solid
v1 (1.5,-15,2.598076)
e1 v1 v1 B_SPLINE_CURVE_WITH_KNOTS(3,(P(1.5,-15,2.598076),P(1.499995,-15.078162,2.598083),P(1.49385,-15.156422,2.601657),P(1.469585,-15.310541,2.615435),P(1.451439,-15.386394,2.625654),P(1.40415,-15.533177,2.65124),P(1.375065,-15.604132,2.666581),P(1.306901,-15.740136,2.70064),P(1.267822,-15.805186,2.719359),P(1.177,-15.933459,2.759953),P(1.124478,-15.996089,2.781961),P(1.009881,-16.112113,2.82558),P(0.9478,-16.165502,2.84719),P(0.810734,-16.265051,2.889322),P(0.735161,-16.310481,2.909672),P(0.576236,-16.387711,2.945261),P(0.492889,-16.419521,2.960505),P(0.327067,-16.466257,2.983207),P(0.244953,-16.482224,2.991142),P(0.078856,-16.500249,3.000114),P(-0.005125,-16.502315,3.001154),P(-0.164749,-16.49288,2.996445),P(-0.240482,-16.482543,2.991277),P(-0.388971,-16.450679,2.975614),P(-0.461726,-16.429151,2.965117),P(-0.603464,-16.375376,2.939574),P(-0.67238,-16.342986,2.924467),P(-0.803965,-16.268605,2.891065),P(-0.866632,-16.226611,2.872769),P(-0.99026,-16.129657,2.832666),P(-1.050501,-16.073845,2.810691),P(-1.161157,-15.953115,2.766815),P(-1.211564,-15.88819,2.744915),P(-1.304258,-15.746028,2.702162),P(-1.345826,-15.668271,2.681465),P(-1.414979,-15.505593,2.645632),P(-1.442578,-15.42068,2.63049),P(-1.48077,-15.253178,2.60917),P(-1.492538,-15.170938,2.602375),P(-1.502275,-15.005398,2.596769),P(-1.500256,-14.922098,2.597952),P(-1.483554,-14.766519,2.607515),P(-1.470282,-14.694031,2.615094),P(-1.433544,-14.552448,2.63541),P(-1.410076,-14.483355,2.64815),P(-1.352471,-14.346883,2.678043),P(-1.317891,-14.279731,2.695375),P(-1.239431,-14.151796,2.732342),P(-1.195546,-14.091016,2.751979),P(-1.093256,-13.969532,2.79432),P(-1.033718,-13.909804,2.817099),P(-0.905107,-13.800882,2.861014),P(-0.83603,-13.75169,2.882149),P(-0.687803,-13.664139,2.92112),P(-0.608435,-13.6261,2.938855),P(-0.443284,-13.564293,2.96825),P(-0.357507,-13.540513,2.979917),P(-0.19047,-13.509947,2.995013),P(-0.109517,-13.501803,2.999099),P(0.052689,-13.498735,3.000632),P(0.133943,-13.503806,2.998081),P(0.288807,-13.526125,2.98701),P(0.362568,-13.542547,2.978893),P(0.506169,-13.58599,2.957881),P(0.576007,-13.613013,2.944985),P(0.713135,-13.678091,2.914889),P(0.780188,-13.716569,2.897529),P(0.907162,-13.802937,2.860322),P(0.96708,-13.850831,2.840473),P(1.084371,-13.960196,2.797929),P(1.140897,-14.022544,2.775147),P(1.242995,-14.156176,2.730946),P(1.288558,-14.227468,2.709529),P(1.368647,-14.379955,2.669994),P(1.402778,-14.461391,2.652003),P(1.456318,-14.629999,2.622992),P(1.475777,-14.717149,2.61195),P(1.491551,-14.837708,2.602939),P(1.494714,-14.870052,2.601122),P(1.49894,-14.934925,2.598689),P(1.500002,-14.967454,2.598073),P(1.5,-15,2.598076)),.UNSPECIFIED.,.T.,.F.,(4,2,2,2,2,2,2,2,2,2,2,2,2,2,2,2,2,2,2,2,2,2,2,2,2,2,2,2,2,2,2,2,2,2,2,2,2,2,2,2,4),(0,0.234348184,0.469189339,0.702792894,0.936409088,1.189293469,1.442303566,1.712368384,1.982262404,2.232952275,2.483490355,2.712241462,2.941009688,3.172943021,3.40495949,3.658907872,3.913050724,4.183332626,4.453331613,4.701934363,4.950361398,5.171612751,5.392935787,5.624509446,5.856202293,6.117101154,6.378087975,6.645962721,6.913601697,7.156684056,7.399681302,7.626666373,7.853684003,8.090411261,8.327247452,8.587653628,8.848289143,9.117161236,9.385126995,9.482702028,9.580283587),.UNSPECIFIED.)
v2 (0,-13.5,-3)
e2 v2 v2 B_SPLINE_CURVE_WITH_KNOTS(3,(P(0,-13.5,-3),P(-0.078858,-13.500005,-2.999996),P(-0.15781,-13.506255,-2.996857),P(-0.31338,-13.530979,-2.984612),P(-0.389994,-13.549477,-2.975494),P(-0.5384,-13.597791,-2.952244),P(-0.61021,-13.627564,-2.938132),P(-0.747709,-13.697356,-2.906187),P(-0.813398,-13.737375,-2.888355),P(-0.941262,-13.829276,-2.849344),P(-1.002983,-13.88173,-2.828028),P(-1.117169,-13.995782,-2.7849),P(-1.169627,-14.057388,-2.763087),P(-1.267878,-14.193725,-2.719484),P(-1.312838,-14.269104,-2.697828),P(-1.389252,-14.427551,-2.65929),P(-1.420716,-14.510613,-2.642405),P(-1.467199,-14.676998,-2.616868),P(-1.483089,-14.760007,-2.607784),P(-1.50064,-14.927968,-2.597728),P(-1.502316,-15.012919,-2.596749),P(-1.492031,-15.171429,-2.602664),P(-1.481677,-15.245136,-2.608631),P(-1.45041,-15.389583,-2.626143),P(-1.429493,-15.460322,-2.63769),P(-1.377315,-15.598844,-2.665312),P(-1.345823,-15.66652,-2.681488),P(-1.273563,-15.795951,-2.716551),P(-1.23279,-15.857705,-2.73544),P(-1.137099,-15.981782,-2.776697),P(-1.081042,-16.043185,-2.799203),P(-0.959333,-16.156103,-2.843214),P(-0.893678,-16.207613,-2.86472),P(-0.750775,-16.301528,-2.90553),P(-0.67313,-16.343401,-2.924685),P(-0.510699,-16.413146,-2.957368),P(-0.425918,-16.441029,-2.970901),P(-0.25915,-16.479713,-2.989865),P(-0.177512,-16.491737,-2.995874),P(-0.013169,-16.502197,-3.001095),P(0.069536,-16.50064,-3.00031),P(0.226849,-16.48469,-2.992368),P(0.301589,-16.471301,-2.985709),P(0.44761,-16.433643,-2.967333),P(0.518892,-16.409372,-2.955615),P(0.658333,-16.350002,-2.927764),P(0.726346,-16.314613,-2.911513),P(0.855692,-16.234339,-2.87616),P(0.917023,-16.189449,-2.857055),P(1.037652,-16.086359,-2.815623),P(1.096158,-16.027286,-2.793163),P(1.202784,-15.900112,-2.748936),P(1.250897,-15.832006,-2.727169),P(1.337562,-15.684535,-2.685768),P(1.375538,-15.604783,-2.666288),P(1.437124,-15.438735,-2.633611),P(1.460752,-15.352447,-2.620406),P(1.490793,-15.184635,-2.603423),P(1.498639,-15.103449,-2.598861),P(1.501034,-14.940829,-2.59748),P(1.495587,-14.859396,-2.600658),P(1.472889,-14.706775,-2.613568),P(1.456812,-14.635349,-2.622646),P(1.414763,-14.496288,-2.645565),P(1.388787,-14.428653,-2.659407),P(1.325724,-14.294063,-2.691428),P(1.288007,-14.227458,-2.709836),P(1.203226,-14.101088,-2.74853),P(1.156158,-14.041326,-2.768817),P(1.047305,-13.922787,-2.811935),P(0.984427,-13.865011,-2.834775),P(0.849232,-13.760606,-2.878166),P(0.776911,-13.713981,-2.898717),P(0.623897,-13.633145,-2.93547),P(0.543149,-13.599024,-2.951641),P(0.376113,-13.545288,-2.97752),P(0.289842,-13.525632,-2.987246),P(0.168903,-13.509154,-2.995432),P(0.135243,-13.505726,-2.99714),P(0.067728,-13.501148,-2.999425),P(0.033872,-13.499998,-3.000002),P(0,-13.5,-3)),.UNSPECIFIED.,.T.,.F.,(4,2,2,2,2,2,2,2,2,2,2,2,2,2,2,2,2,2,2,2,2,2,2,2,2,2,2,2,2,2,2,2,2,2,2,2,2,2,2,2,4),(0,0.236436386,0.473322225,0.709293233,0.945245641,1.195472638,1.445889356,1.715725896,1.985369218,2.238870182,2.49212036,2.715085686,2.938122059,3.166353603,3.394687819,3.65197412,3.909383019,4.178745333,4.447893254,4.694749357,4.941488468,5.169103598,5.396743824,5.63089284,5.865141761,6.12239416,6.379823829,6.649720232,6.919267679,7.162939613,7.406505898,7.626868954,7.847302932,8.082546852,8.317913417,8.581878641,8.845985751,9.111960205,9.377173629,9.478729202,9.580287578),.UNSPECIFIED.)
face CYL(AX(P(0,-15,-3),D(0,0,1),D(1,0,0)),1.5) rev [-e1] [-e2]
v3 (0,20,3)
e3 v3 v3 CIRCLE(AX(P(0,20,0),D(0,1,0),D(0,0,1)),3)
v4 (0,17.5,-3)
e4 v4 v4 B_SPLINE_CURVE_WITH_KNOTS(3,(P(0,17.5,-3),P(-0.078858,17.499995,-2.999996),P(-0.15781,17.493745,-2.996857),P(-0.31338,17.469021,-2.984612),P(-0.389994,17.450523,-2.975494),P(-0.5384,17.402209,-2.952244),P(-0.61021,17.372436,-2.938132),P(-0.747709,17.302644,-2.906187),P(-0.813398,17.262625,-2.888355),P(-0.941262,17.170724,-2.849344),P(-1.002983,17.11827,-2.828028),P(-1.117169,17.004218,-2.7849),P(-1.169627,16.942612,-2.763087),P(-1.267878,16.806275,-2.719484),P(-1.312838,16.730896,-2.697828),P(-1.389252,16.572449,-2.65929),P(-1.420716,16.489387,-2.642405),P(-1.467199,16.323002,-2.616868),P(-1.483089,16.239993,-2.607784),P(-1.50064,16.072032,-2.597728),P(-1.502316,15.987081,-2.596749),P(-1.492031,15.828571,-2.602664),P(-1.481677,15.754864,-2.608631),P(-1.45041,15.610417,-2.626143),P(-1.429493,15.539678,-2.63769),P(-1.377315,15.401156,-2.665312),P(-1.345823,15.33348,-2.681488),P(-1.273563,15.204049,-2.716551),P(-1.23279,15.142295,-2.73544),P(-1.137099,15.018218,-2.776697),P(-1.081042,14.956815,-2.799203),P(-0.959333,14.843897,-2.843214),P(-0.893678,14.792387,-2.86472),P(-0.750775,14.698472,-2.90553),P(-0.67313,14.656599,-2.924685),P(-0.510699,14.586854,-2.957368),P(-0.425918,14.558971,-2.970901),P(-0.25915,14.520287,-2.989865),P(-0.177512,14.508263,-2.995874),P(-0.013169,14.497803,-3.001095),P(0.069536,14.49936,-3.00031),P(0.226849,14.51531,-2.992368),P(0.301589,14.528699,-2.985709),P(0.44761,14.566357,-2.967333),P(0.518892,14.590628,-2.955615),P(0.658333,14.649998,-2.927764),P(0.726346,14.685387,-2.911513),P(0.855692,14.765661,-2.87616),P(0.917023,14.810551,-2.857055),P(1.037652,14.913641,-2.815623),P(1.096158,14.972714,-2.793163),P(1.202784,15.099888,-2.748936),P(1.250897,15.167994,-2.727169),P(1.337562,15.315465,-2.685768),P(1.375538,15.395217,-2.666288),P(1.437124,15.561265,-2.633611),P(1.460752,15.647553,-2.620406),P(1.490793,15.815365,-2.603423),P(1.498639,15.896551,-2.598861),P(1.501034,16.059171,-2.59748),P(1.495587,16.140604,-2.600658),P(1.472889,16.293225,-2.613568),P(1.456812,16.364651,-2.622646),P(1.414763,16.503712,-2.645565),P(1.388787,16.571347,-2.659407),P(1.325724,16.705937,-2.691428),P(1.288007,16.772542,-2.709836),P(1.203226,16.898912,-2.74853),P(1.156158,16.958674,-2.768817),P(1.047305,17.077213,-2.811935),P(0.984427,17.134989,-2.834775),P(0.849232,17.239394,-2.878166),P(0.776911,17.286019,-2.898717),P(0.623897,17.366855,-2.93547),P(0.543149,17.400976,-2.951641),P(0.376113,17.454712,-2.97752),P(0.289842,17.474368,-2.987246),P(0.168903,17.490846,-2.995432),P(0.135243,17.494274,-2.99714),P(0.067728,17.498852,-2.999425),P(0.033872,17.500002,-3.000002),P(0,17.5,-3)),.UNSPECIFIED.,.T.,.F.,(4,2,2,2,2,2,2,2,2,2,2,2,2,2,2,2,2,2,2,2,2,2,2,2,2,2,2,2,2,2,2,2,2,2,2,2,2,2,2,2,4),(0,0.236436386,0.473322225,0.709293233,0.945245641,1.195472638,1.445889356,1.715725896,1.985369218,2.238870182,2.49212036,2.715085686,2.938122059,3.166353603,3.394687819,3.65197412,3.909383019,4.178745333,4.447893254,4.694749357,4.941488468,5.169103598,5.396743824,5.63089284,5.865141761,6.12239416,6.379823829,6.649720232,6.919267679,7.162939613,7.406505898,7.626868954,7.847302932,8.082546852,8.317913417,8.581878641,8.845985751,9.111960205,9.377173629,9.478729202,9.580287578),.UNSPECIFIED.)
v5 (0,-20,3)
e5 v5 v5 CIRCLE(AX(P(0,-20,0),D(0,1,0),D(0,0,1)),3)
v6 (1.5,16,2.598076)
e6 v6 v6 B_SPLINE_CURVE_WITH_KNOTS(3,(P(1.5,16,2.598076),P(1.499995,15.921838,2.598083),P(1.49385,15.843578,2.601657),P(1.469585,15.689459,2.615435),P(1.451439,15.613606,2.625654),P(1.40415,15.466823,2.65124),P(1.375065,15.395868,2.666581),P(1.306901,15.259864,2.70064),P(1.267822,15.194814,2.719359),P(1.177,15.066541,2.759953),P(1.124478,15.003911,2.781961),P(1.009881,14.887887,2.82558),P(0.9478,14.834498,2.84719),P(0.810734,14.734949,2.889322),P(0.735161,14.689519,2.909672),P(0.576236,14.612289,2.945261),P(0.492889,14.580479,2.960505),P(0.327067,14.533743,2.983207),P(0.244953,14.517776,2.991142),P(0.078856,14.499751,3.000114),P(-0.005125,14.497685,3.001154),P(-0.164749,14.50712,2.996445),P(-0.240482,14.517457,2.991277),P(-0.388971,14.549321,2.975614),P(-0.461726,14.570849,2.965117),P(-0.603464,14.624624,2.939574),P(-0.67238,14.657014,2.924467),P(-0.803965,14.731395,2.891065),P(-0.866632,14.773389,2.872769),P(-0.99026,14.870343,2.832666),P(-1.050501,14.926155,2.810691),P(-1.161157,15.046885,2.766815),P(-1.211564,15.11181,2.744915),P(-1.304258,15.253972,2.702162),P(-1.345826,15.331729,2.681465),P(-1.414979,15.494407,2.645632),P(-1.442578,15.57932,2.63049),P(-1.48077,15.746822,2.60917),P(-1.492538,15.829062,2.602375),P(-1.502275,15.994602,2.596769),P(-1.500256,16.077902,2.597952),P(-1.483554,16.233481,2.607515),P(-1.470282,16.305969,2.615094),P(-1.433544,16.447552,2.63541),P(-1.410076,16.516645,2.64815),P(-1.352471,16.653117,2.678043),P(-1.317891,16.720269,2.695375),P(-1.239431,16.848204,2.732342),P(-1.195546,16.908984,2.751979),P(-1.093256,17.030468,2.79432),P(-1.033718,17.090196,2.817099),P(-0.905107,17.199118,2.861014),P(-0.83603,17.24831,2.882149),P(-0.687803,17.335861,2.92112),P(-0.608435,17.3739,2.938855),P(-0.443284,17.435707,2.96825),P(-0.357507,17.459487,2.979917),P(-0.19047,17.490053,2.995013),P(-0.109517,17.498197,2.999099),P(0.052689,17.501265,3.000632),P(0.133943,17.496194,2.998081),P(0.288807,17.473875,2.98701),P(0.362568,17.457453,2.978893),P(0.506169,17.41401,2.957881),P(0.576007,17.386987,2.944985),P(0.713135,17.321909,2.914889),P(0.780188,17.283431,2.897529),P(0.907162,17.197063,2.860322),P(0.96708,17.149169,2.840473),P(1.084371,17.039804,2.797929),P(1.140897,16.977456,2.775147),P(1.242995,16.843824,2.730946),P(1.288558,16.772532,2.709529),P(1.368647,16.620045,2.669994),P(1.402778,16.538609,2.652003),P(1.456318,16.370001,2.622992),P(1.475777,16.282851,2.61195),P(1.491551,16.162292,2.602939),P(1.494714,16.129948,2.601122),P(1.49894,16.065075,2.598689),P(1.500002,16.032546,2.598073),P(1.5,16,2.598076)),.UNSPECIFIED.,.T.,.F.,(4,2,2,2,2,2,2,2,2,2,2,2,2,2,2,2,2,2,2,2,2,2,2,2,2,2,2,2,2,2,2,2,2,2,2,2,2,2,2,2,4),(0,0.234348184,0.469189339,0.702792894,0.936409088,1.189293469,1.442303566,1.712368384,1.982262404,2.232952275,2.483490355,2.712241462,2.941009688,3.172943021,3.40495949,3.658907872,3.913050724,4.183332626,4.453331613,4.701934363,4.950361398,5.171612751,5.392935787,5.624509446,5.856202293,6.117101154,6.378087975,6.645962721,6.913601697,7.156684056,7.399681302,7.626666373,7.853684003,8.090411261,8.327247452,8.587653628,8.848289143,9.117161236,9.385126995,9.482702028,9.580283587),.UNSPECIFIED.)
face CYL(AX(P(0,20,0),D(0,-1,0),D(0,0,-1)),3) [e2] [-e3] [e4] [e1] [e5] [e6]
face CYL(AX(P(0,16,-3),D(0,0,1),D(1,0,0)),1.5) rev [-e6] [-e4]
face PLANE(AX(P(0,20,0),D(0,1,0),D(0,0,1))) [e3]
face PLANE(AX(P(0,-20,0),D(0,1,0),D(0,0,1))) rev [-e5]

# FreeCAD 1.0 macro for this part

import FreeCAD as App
import Part
import Sketcher

V = App.Vector
Q = App.Units.Quantity

doc = App.newDocument("Part")
params = doc.addObject("Spreadsheet::Sheet", "Params")
for row, (alias, value) in enumerate([
    ("sketch1_diameter", "6 mm"),
    ("pad1_length", "40 mm"),
    ("sketch2_diameter", "3 mm"),
], start=1):
    params.set(f"A{row}", alias)
    params.set(f"B{row}", "=" + value)
    params.setAlias(f"B{row}", alias)

body = doc.addObject("PartDesign::Body", "Body")

# Sketch on XZ plane
sketch1 = doc.addObject("Sketcher::SketchObject", "Sketch")
body.addObject(sketch1)
sketch1.AttachmentSupport = (doc.XZ_Plane, [""])
sketch1.MapMode = "FlatFace"
sketch1.addGeometry(Part.Circle(V(0, 0, 0), V(0, 0, 1), 3), False)
sketch1.addConstraint([
    Sketcher.Constraint("Coincident", 0, 3, -1, 1),
    Sketcher.Constraint("Diameter", 0, Q("6 mm")),
])
sketch1.setExpression("Constraints[1]", "Params.sketch1_diameter")
pad1 = doc.addObject("PartDesign::Pad", "Pad")
body.addObject(pad1)
pad1.Profile = sketch1
pad1.setExpression("Length", "Params.pad1_length")
pad1.Midplane = True

# Sketch on XY plane
sketch2 = doc.addObject("Sketcher::SketchObject", "Sketch001")
body.addObject(sketch2)
sketch2.AttachmentSupport = (doc.XY_Plane, [""])
sketch2.MapMode = "FlatFace"
sketch2.addGeometry([
    Part.Circle(V(0, 16, 0), V(0, 0, 1), 1.5),
    Part.Circle(V(0, -15, 0), V(0, 0, 1), 1.5),
], False)
sketch2.addConstraint([
    Sketcher.Constraint("Equal", 0, 1),
    Sketcher.Constraint("PointOnObject", 0, 3, -2),
    Sketcher.Constraint("PointOnObject", 1, 3, -2),
    Sketcher.Constraint("Diameter", 0, Q("3 mm")),
    Sketcher.Constraint("DistanceY", -1, 1, 0, 3, Q("16 mm")),
    Sketcher.Constraint("DistanceY", 1, 3, -1, 1, Q("15 mm")),
])
sketch2.setExpression("Constraints[3]", "Params.sketch2_diameter")
pocket1 = doc.addObject("PartDesign::Pocket", "Pocket")
body.addObject(pocket1)
pocket1.Profile = sketch2
pocket1.Type = "ThroughAll"
pocket1.Midplane = True

doc.recompute()
